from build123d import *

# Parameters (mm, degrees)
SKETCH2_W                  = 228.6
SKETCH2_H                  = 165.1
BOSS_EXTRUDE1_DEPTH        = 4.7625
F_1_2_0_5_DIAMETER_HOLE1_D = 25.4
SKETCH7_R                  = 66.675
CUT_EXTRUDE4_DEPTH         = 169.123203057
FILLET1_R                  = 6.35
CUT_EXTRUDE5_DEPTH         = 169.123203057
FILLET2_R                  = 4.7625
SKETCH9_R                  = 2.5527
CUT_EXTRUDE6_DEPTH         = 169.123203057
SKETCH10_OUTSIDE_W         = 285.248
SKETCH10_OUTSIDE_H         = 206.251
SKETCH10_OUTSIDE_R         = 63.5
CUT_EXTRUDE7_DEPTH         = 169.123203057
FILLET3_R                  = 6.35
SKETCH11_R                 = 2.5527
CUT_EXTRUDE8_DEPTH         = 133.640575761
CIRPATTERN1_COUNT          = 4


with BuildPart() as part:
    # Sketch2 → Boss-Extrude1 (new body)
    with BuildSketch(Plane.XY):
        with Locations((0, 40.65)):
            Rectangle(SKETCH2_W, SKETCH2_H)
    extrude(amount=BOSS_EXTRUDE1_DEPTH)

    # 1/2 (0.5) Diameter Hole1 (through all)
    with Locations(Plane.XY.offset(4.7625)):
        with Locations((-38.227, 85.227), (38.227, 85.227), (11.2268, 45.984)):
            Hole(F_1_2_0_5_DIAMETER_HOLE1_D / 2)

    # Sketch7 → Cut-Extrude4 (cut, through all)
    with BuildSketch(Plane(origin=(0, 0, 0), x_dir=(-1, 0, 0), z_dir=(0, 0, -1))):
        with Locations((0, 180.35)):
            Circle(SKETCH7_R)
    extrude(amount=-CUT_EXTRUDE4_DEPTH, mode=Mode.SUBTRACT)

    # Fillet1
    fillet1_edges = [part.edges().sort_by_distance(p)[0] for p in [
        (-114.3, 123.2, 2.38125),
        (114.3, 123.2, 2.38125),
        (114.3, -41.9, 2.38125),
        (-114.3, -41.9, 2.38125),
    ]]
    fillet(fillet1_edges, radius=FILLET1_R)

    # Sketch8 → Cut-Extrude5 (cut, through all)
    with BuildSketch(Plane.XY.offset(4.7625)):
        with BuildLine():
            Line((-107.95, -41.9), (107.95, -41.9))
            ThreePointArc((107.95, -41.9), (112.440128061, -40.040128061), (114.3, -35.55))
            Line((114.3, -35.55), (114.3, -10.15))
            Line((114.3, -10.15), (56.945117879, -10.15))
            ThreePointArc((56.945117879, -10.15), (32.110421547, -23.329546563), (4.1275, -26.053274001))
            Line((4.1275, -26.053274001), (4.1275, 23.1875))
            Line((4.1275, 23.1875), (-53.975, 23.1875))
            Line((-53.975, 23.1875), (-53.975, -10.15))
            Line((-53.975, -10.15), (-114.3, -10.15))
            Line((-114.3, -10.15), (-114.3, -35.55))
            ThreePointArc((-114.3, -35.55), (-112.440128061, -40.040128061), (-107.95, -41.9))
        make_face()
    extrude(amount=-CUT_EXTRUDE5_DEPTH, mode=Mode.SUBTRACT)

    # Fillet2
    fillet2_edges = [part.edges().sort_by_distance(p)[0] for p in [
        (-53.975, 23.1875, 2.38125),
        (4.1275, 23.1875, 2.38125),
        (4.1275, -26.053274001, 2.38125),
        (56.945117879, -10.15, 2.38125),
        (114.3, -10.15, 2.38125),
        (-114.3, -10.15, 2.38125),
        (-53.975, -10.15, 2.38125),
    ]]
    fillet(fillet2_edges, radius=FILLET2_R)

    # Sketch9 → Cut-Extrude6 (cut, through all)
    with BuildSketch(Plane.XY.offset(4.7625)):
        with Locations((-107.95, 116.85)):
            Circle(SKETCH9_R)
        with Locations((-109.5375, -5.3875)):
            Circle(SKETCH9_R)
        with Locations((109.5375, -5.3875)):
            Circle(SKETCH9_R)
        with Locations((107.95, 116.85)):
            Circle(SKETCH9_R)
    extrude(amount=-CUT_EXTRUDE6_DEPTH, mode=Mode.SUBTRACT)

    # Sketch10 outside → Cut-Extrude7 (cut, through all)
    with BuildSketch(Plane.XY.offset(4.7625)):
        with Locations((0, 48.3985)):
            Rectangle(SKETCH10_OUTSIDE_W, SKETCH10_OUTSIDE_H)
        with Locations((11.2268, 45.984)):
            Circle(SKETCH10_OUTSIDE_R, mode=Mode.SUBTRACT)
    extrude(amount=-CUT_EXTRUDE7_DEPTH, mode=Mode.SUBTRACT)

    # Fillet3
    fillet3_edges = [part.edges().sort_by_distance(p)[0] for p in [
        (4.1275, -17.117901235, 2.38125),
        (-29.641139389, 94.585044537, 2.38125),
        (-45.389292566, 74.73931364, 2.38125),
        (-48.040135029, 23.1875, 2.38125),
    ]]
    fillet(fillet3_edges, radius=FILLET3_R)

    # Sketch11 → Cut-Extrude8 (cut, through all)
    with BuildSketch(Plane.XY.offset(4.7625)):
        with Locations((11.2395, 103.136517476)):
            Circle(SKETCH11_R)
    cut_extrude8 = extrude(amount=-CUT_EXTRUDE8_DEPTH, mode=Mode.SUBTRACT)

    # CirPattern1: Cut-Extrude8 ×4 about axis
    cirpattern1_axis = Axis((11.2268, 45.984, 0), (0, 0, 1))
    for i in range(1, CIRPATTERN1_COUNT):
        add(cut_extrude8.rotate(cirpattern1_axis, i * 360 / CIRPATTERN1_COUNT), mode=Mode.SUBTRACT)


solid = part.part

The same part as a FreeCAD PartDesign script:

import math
import FreeCAD as App
import Part
import Sketcher

V = App.Vector
Q = App.Units.Quantity


def edges_at(feature, points):
    """Names of the edges that pass closest to the given points."""
    edges = feature.Shape.Edges
    near = lambda p: min(range(len(edges)), key=lambda i: edges[i].distToShape(Part.Vertex(*p))[0])
    return sorted({f"Edge{near(p) + 1}" for p in points})


def add_polygon(sketch, points):
    """Adds a closed chain of lines whose ends are joined by coincident constraints."""
    first, n = sketch.GeometryCount, len(points)
    for a, b in zip(points, points[1:] + points[:1]):
        sketch.addGeometry(Part.LineSegment(App.Vector(*a, 0), App.Vector(*b, 0)), False)
    for i in range(n):
        sketch.addConstraint(Sketcher.Constraint("Coincident", first + i, 2, first + (i + 1) % n, 1))

doc = App.newDocument("Part")
body = doc.addObject("PartDesign::Body", "Body")

# Sketch on XY plane
sketch1 = body.newObject("Sketcher::SketchObject", "Sketch")
sketch1.AttachmentSupport = (doc.getObject("XY_Plane"), [""])
sketch1.MapMode = "FlatFace"
add_polygon(sketch1, [(-114.3, 123.2), (-114.3, -41.9), (114.3, -41.9), (114.3, 123.2)])  # lines 0-3
sketch1.addConstraint([
    Sketcher.Constraint("Vertical", 0),
    Sketcher.Constraint("Horizontal", 1),
    Sketcher.Constraint("Vertical", 2),
    Sketcher.Constraint("Horizontal", 3),
    Sketcher.Constraint("DistanceX", 1, 1, 1, 2, Q("9 in")),
    Sketcher.Constraint("DistanceY", 0, 2, 0, 1, Q("6.5 in")),
    Sketcher.Constraint("DistanceX", 0, 2, -1, 1, Q("4.5 in")),
    Sketcher.Constraint("DistanceY", 0, 2, -1, 1, 41.9),
])
pad1 = body.newObject("PartDesign::Pad", "Pad")
pad1.Profile = sketch1
pad1.Length = Q("0.1875 in")

# Sketch on XY plane
sketch2 = body.newObject("Sketcher::SketchObject", "Sketch001")
sketch2.AttachmentSupport = (doc.getObject("XY_Plane"), [""])
sketch2.MapMode = "FlatFace"
sketch2.AttachmentOffset = App.Placement(V(0, 0, 0.1875 * 25.4), App.Rotation())
sketch2.addGeometry([
    Part.Circle(V(-38.227, 85.227, 0), V(0, 0, 1), 12.7),
    Part.Circle(V(38.227, 85.227, 0), V(0, 0, 1), 12.7),
    Part.Circle(V(11.2268, 45.984, 0), V(0, 0, 1), 12.7),
], False)
sketch2.addConstraint([
    Sketcher.Constraint("Equal", 0, 1),
    Sketcher.Constraint("Equal", 1, 2),
    Sketcher.Constraint("Symmetric", 0, 3, 1, 3, -2),
    Sketcher.Constraint("Diameter", 0, Q("1 in")),
    Sketcher.Constraint("DistanceX", 0, 3, 1, 3, Q("3.01 in")),
    Sketcher.Constraint("DistanceX", -1, 1, 2, 3, Q("0.442 in")),
    Sketcher.Constraint("DistanceY", 2, 3, 1, 3, Q("1.545 in")),
    Sketcher.Constraint("DistanceY", -1, 1, 0, 3, 85.227),
])
doc.recompute()
hole = body.newObject("PartDesign::Hole", "Hole")
hole.Profile = sketch2
hole.ThreadType = "None"
hole.Diameter = Q("1 in")
hole.DepthType = "ThroughAll"

# Sketch on XY plane
sketch3 = body.newObject("Sketcher::SketchObject", "Sketch002")
sketch3.AttachmentSupport = (doc.getObject("XY_Plane"), [""])
sketch3.MapMode = "FlatFace"
sketch3.addGeometry(Part.Circle(V(0, 180.35, 0), V(0, 0, 1), 66.675), False)
sketch3.addConstraint([
    Sketcher.Constraint("PointOnObject", 0, 3, -2),
    Sketcher.Constraint("Diameter", 0, Q("5.25 in")),
    Sketcher.Constraint("DistanceY", -1, 1, 0, 3, 180.35),
])
pocket1 = body.newObject("PartDesign::Pocket", "Pocket")
pocket1.Profile = sketch3
pocket1.Type = "ThroughAll"
pocket1.Reversed = True
doc.recompute()

fillet = body.newObject("PartDesign::Fillet", "Fillet")
fillet.Base = (pocket1, edges_at(pocket1, [
    (-114.3, 123.2, 2.381),
    (114.3, 123.2, 2.381),
    (114.3, -41.9, 2.381),
    (-114.3, -41.9, 2.381),
]))
fillet.Radius = Q("0.25 in")

# Sketch on XY plane
sketch4 = body.newObject("Sketcher::SketchObject", "Sketch003")
sketch4.AttachmentSupport = (doc.getObject("XY_Plane"), [""])
sketch4.MapMode = "FlatFace"
sketch4.AttachmentOffset = App.Placement(V(0, 0, 0.1875 * 25.4), App.Rotation())
sketch4.addGeometry([
    Part.LineSegment(V(-107.95, -41.9, 0), V(107.95, -41.9, 0)),  # 0
    Part.ArcOfCircle(Part.Circle(V(107.95, -35.55, 0), V(0, 0, 1), 6.35), math.radians(-90), math.radians(0)),  # 1
    Part.LineSegment(V(114.3, -35.55, 0), V(114.3, -10.15, 0)),  # 2
    Part.LineSegment(V(114.3, -10.15, 0), V(56.945118, -10.15, 0)),  # 3
    Part.ArcOfCircle(Part.Circle(V(11.2395, 45.986517, 0), V(0, 0, 1), 72.39), math.radians(-95.638154), math.radians(-50.84797)),  # 4
    Part.LineSegment(V(4.1275, -26.053274, 0), V(4.1275, 23.1875, 0)),  # 5
    Part.LineSegment(V(4.1275, 23.1875, 0), V(-53.975, 23.1875, 0)),  # 6
    Part.LineSegment(V(-53.975, 23.1875, 0), V(-53.975, -10.15, 0)),  # 7
    Part.LineSegment(V(-53.975, -10.15, 0), V(-114.3, -10.15, 0)),  # 8
    Part.LineSegment(V(-114.3, -10.15, 0), V(-114.3, -35.55, 0)),  # 9
    Part.ArcOfCircle(Part.Circle(V(-107.95, -35.55, 0), V(0, 0, 1), 6.35), math.radians(180), math.radians(270)),  # 10
], False)
sketch4.addConstraint([
    Sketcher.Constraint("Tangent", 0, 2, 1, 1),
    Sketcher.Constraint("Tangent", 1, 2, 2, 1),
    Sketcher.Constraint("Coincident", 2, 2, 3, 1),
    Sketcher.Constraint("Coincident", 3, 2, 4, 2),
    Sketcher.Constraint("Coincident", 4, 1, 5, 1),
    Sketcher.Constraint("Coincident", 5, 2, 6, 1),
    Sketcher.Constraint("Coincident", 6, 2, 7, 1),
    Sketcher.Constraint("Coincident", 7, 2, 8, 1),
    Sketcher.Constraint("Coincident", 8, 2, 9, 1),
    Sketcher.Constraint("Tangent", 9, 2, 10, 1),
    Sketcher.Constraint("Tangent", 10, 2, 0, 1),
    Sketcher.Constraint("Horizontal", 0),
    Sketcher.Constraint("Vertical", 2),
    Sketcher.Constraint("Horizontal", 3),
    Sketcher.Constraint("Vertical", 5),
    Sketcher.Constraint("Horizontal", 6),
    Sketcher.Constraint("Vertical", 7),
    Sketcher.Constraint("Horizontal", 8),
    Sketcher.Constraint("Vertical", 9),
    Sketcher.Constraint("Equal", 1, 10),
    Sketcher.Constraint("Symmetric", 2, 2, 8, 2, -2),
    Sketcher.Constraint("DistanceY", 2, 1, 2, 2, Q("1 in")),
    Sketcher.Constraint("Radius", 1, Q("0.25 in")),
    Sketcher.Constraint("Radius", 4, Q("2.85 in")),
    Sketcher.Constraint("DistanceX", 0, 1, 0, 2, Q("8.5 in")),
    Sketcher.Constraint("DistanceX", 8, 2, 8, 1, Q("2.375 in")),
    Sketcher.Constraint("DistanceY", 7, 2, 7, 1, Q("1.3125 in")),
    Sketcher.Constraint("DistanceX", 4, 1, 4, 3, Q("0.28 in")),
    Sketcher.Constraint("DistanceX", 6, 2, 6, 1, Q("2.2875 in")),
    Sketcher.Constraint("DistanceY", 1, 3, -1, 1, 35.55),
    Sketcher.Constraint("DistanceX", 3, 2, 3, 1, 57.354882),
])
pocket2 = body.newObject("PartDesign::Pocket", "Pocket001")
pocket2.Profile = sketch4
pocket2.Type = "ThroughAll"
doc.recompute()

fillet2 = body.newObject("PartDesign::Fillet", "Fillet001")
fillet2.Base = (pocket2, edges_at(pocket2, [
    (-53.975, 23.188, 2.381),
    (4.128, 23.188, 2.381),
    (4.128, -26.053, 2.381),
    (56.945, -10.15, 2.381),
    (114.3, -10.15, 2.381),
    (-114.3, -10.15, 2.381),
    (-53.975, -10.15, 2.381),
]))
fillet2.Radius = Q("0.1875 in")

# Sketch on XY plane
sketch5 = body.newObject("Sketcher::SketchObject", "Sketch004")
sketch5.AttachmentSupport = (doc.getObject("XY_Plane"), [""])
sketch5.MapMode = "FlatFace"
sketch5.AttachmentOffset = App.Placement(V(0, 0, 0.1875 * 25.4), App.Rotation())
sketch5.addGeometry([
    Part.Circle(V(-107.95, 116.85, 0), V(0, 0, 1), 2.5527),
    Part.Circle(V(-109.5375, -5.3875, 0), V(0, 0, 1), 2.5527),
    Part.Circle(V(109.5375, -5.3875, 0), V(0, 0, 1), 2.5527),
    Part.Circle(V(107.95, 116.85, 0), V(0, 0, 1), 2.5527),
], False)
sketch5.addConstraint([
    Sketcher.Constraint("Equal", 0, 1),
    Sketcher.Constraint("Equal", 1, 2),
    Sketcher.Constraint("Equal", 2, 3),
    Sketcher.Constraint("Symmetric", 1, 3, 2, 3, -2),
    Sketcher.Constraint("Symmetric", 0, 3, 3, 3, -2),
    Sketcher.Constraint("Diameter", 0, Q("0.201 in")),
    Sketcher.Constraint("DistanceX", 0, 3, 3, 3, Q("8.5 in")),
    Sketcher.Constraint("DistanceX", 1, 3, -1, 1, Q("4.3125 in")),
    Sketcher.Constraint("DistanceY", 1, 3, 0, 3, Q("4.8125 in")),
    Sketcher.Constraint("DistanceY", -1, 1, 0, 3, 116.85),
])
pocket3 = body.newObject("PartDesign::Pocket", "Pocket002")
pocket3.Profile = sketch5
pocket3.Type = "ThroughAll"

# Sketch on XY plane
sketch6 = body.newObject("Sketcher::SketchObject", "Sketch005")
sketch6.AttachmentSupport = (doc.getObject("XY_Plane"), [""])
sketch6.MapMode = "FlatFace"
sketch6.AttachmentOffset = App.Placement(V(0, 0, 0.1875 * 25.4), App.Rotation())
add_polygon(sketch6, [(-142.624, 151.524), (-142.624, -54.727), (142.624, -54.727), (142.624, 151.524)])  # lines 0-3
sketch6.addGeometry(Part.Circle(V(11.2268, 45.984, 0), V(0, 0, 1), 63.5), False)  # 4
sketch6.addConstraint([
    Sketcher.Constraint("Vertical", 0),
    Sketcher.Constraint("Horizontal", 1),
    Sketcher.Constraint("Vertical", 2),
    Sketcher.Constraint("Horizontal", 3),
    Sketcher.Constraint("Diameter", 4, Q("5 in")),
    Sketcher.Constraint("DistanceX", -1, 1, 4, 3, Q("0.442 in")),
    Sketcher.Constraint("DistanceY", 0, 2, 4, 3, Q("3.965 in")),
    Sketcher.Constraint("DistanceX", 1, 1, 1, 2, 285.248),
    Sketcher.Constraint("DistanceY", 0, 2, 0, 1, 206.251),
    Sketcher.Constraint("DistanceY", -1, 1, 4, 3, 45.984),
    Sketcher.Constraint("DistanceX", 0, 2, -1, 1, 142.624),
])
pocket4 = body.newObject("PartDesign::Pocket", "Pocket003")
pocket4.Profile = sketch6
pocket4.Type = "ThroughAll"
doc.recompute()

fillet3 = body.newObject("PartDesign::Fillet", "Fillet002")
fillet3.Base = (pocket4, edges_at(pocket4, [
    (4.128, -17.118, 2.381),
    (-29.641, 94.585, 2.381),
    (-45.389, 74.739, 2.381),
    (-48.04, 23.188, 2.381),
]))
fillet3.Radius = Q("0.25 in")

# Sketch on XY plane
sketch7 = body.newObject("Sketcher::SketchObject", "Sketch006")
sketch7.AttachmentSupport = (doc.getObject("XY_Plane"), [""])
sketch7.MapMode = "FlatFace"
sketch7.AttachmentOffset = App.Placement(V(0, 0, 0.1875 * 25.4), App.Rotation())
sketch7.addGeometry(Part.Circle(V(11.2395, 103.136517, 0), V(0, 0, 1), 2.5527), False)
sketch7.addConstraint([
    Sketcher.Constraint("Diameter", 0, Q("0.201 in")),
    Sketcher.Constraint("DistanceX", -1, 1, 0, 3, Q("0.4425 in")),
    Sketcher.Constraint("DistanceY", -1, 1, 0, 3, 103.136517),
])
pocket5 = body.newObject("PartDesign::Pocket", "Pocket004")
pocket5.Profile = sketch7
pocket5.Type = "ThroughAll"
doc.recompute()

datumline = body.newObject("PartDesign::Line", "DatumLine")
datumline.Placement = App.Placement(V(11.2268, 45.984, 0), App.Rotation(V(0, 0, 1), V(0, 0, 1)))
polarpattern = body.newObject("PartDesign::PolarPattern", "PolarPattern")
polarpattern.Originals = [pocket5]
polarpattern.Axis = (datumline, [""])
polarpattern.Angle = 360
polarpattern.Occurrences = 4
body.Tip = polarpattern

doc.recompute()
